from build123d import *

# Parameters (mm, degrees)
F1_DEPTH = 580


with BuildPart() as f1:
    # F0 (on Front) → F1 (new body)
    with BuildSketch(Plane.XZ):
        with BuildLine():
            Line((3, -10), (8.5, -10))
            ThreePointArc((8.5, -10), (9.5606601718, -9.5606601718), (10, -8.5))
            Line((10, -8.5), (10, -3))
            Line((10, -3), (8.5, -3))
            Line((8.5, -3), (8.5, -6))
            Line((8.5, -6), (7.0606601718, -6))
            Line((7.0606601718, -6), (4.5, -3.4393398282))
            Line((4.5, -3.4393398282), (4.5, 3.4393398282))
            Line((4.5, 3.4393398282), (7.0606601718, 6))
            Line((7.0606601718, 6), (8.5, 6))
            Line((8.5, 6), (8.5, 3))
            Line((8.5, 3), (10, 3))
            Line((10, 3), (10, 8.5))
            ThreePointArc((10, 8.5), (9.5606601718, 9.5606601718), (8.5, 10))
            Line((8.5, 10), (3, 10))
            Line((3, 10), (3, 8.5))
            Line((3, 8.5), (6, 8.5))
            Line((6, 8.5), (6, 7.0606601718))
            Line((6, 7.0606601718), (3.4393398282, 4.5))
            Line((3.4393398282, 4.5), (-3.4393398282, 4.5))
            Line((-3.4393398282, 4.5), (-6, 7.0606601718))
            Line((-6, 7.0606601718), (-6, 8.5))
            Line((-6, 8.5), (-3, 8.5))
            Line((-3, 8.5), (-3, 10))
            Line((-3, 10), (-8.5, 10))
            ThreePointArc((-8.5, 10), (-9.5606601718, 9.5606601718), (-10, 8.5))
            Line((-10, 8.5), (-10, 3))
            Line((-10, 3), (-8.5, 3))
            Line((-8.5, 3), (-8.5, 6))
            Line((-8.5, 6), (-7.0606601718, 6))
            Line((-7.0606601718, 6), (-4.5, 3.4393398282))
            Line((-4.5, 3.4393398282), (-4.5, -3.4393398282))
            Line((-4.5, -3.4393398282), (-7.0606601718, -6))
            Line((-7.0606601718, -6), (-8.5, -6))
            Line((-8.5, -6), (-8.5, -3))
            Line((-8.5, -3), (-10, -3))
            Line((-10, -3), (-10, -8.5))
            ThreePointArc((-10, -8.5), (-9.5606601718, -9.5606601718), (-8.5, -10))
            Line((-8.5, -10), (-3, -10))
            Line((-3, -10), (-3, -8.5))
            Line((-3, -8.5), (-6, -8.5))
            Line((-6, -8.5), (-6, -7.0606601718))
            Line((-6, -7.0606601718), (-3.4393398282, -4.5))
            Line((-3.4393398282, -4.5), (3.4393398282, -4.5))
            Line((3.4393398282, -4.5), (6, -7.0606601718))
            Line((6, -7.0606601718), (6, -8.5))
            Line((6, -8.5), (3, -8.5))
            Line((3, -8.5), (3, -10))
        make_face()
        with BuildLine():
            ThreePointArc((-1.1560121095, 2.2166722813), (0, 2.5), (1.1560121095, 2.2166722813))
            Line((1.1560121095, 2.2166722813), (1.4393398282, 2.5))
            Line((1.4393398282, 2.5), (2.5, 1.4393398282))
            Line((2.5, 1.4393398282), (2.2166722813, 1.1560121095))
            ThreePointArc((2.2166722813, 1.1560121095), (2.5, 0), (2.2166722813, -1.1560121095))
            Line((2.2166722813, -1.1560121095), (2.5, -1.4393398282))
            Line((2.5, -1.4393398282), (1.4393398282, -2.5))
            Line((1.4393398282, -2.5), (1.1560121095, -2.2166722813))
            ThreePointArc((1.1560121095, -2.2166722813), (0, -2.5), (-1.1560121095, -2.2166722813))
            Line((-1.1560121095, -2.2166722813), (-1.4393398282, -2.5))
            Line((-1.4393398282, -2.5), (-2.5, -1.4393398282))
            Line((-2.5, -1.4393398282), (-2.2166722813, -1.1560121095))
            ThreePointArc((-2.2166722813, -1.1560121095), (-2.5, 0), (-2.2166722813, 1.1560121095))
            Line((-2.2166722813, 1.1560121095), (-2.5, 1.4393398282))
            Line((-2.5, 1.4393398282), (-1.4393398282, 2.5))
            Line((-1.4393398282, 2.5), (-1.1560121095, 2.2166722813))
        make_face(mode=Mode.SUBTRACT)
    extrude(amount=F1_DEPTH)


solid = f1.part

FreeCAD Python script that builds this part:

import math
import FreeCAD as App
import Part
import Sketcher

doc = App.newDocument("Part")
body = doc.addObject("PartDesign::Body", "Body")

sketch1 = doc.addObject("Sketcher::SketchObject", "Sketch")
body.addObject(sketch1)
sketch1.AttachmentSupport = (doc.XZ_Plane, [""])
sketch1.MapMode = "FlatFace"
sketch1.addGeometry([
    Part.LineSegment(App.Vector(3, -10, 0), App.Vector(8.5, -10, 0)),
    Part.ArcOfCircle(Part.Circle(App.Vector(8.5, -8.5, 0), App.Vector(0, 0, 1), 1.5), math.radians(-90), math.radians(0)),
    Part.LineSegment(App.Vector(10, -8.5, 0), App.Vector(10, -3, 0)),
    Part.LineSegment(App.Vector(10, -3, 0), App.Vector(8.5, -3, 0)),
    Part.LineSegment(App.Vector(8.5, -3, 0), App.Vector(8.5, -6, 0)),
    Part.LineSegment(App.Vector(8.5, -6, 0), App.Vector(7.06, -6, 0)),
    Part.LineSegment(App.Vector(7.06, -6, 0), App.Vector(4.5, -3.44, 0)),
    Part.LineSegment(App.Vector(4.5, -3.44, 0), App.Vector(4.5, 3.44, 0)),
    Part.LineSegment(App.Vector(4.5, 3.44, 0), App.Vector(7.06, 6, 0)),
    Part.LineSegment(App.Vector(7.06, 6, 0), App.Vector(8.5, 6, 0)),
    Part.LineSegment(App.Vector(8.5, 6, 0), App.Vector(8.5, 3, 0)),
    Part.LineSegment(App.Vector(8.5, 3, 0), App.Vector(10, 3, 0)),
    Part.LineSegment(App.Vector(10, 3, 0), App.Vector(10, 8.5, 0)),
    Part.ArcOfCircle(Part.Circle(App.Vector(8.5, 8.5, 0), App.Vector(0, 0, 1), 1.5), math.radians(0), math.radians(90)),
    Part.LineSegment(App.Vector(8.5, 10, 0), App.Vector(3, 10, 0)),
    Part.LineSegment(App.Vector(3, 10, 0), App.Vector(3, 8.5, 0)),
    Part.LineSegment(App.Vector(3, 8.5, 0), App.Vector(6, 8.5, 0)),
    Part.LineSegment(App.Vector(6, 8.5, 0), App.Vector(6, 7.06, 0)),
    Part.LineSegment(App.Vector(6, 7.06, 0), App.Vector(3.44, 4.5, 0)),
    Part.LineSegment(App.Vector(3.44, 4.5, 0), App.Vector(-3.44, 4.5, 0)),
    Part.LineSegment(App.Vector(-3.44, 4.5, 0), App.Vector(-6, 7.06, 0)),
    Part.LineSegment(App.Vector(-6, 7.06, 0), App.Vector(-6, 8.5, 0)),
    Part.LineSegment(App.Vector(-6, 8.5, 0), App.Vector(-3, 8.5, 0)),
    Part.LineSegment(App.Vector(-3, 8.5, 0), App.Vector(-3, 10, 0)),
    Part.LineSegment(App.Vector(-3, 10, 0), App.Vector(-8.5, 10, 0)),
    Part.ArcOfCircle(Part.Circle(App.Vector(-8.5, 8.5, 0), App.Vector(0, 0, 1), 1.5), math.radians(90), math.radians(180)),
    Part.LineSegment(App.Vector(-10, 8.5, 0), App.Vector(-10, 3, 0)),
    Part.LineSegment(App.Vector(-10, 3, 0), App.Vector(-8.5, 3, 0)),
    Part.LineSegment(App.Vector(-8.5, 3, 0), App.Vector(-8.5, 6, 0)),
    Part.LineSegment(App.Vector(-8.5, 6, 0), App.Vector(-7.06, 6, 0)),
    Part.LineSegment(App.Vector(-7.06, 6, 0), App.Vector(-4.5, 3.44, 0)),
    Part.LineSegment(App.Vector(-4.5, 3.44, 0), App.Vector(-4.5, -3.44, 0)),
    Part.LineSegment(App.Vector(-4.5, -3.44, 0), App.Vector(-7.06, -6, 0)),
    Part.LineSegment(App.Vector(-7.06, -6, 0), App.Vector(-8.5, -6, 0)),
    Part.LineSegment(App.Vector(-8.5, -6, 0), App.Vector(-8.5, -3, 0)),
    Part.LineSegment(App.Vector(-8.5, -3, 0), App.Vector(-10, -3, 0)),
    Part.LineSegment(App.Vector(-10, -3, 0), App.Vector(-10, -8.5, 0)),
    Part.ArcOfCircle(Part.Circle(App.Vector(-8.5, -8.5, 0), App.Vector(0, 0, 1), 1.5), math.radians(180), math.radians(270)),
    Part.LineSegment(App.Vector(-8.5, -10, 0), App.Vector(-3, -10, 0)),
    Part.LineSegment(App.Vector(-3, -10, 0), App.Vector(-3, -8.5, 0)),
    Part.LineSegment(App.Vector(-3, -8.5, 0), App.Vector(-6, -8.5, 0)),
    Part.LineSegment(App.Vector(-6, -8.5, 0), App.Vector(-6, -7.06, 0)),
    Part.LineSegment(App.Vector(-6, -7.06, 0), App.Vector(-3.44, -4.5, 0)),
    Part.LineSegment(App.Vector(-3.44, -4.5, 0), App.Vector(3.44, -4.5, 0)),
    Part.LineSegment(App.Vector(3.44, -4.5, 0), App.Vector(6, -7.06, 0)),
    Part.LineSegment(App.Vector(6, -7.06, 0), App.Vector(6, -8.5, 0)),
    Part.LineSegment(App.Vector(6, -8.5, 0), App.Vector(3, -8.5, 0)),
    Part.LineSegment(App.Vector(3, -8.5, 0), App.Vector(3, -10, 0)),
    Part.LineSegment(App.Vector(-1.44, 2.5, 0), App.Vector(-1.16, 2.22, 0)),
    Part.ArcOfCircle(Part.Circle(App.Vector(0, 0, 0), App.Vector(0, 0, 1), 2.5), math.radians(62), math.radians(118)),
    Part.LineSegment(App.Vector(1.16, 2.22, 0), App.Vector(1.44, 2.5, 0)),
    Part.LineSegment(App.Vector(1.44, 2.5, 0), App.Vector(2.5, 1.44, 0)),
    Part.LineSegment(App.Vector(2.5, 1.44, 0), App.Vector(2.22, 1.16, 0)),
    Part.ArcOfCircle(Part.Circle(App.Vector(0, 0, 0), App.Vector(0, 0, 1), 2.5), math.radians(-28), math.radians(28)),
    Part.LineSegment(App.Vector(2.22, -1.16, 0), App.Vector(2.5, -1.44, 0)),
    Part.LineSegment(App.Vector(2.5, -1.44, 0), App.Vector(1.44, -2.5, 0)),
    Part.LineSegment(App.Vector(1.44, -2.5, 0), App.Vector(1.16, -2.22, 0)),
    Part.ArcOfCircle(Part.Circle(App.Vector(0, 0, 0), App.Vector(0, 0, 1), 2.5), math.radians(-118), math.radians(-62)),
    Part.LineSegment(App.Vector(-1.16, -2.22, 0), App.Vector(-1.44, -2.5, 0)),
    Part.LineSegment(App.Vector(-1.44, -2.5, 0), App.Vector(-2.5, -1.44, 0)),
    Part.LineSegment(App.Vector(-2.5, -1.44, 0), App.Vector(-2.22, -1.16, 0)),
    Part.ArcOfCircle(Part.Circle(App.Vector(0, 0, 0), App.Vector(0, 0, 1), 2.5), math.radians(152), math.radians(208)),
    Part.LineSegment(App.Vector(-2.22, 1.16, 0), App.Vector(-2.5, 1.44, 0)),
    Part.LineSegment(App.Vector(-2.5, 1.44, 0), App.Vector(-1.44, 2.5, 0)),
], False)
sketch1.addConstraint([
    Sketcher.Constraint("Tangent", 0, 2, 1, 1),
    Sketcher.Constraint("Tangent", 1, 2, 2, 1),
    Sketcher.Constraint("Coincident", 2, 2, 3, 1),
    Sketcher.Constraint("Coincident", 3, 2, 4, 1),
    Sketcher.Constraint("Coincident", 4, 2, 5, 1),
    Sketcher.Constraint("Coincident", 5, 2, 6, 1),
    Sketcher.Constraint("Coincident", 6, 2, 7, 1),
    Sketcher.Constraint("Coincident", 7, 2, 8, 1),
    Sketcher.Constraint("Coincident", 8, 2, 9, 1),
    Sketcher.Constraint("Coincident", 9, 2, 10, 1),
    Sketcher.Constraint("Coincident", 10, 2, 11, 1),
    Sketcher.Constraint("Coincident", 11, 2, 12, 1),
    Sketcher.Constraint("Tangent", 12, 2, 13, 1),
    Sketcher.Constraint("Tangent", 13, 2, 14, 1),
    Sketcher.Constraint("Coincident", 14, 2, 15, 1),
    Sketcher.Constraint("Coincident", 15, 2, 16, 1),
    Sketcher.Constraint("Coincident", 16, 2, 17, 1),
    Sketcher.Constraint("Coincident", 17, 2, 18, 1),
    Sketcher.Constraint("Coincident", 18, 2, 19, 1),
    Sketcher.Constraint("Coincident", 19, 2, 20, 1),
    Sketcher.Constraint("Coincident", 20, 2, 21, 1),
    Sketcher.Constraint("Coincident", 21, 2, 22, 1),
    Sketcher.Constraint("Coincident", 22, 2, 23, 1),
    Sketcher.Constraint("Coincident", 23, 2, 24, 1),
    Sketcher.Constraint("Tangent", 24, 2, 25, 1),
    Sketcher.Constraint("Tangent", 25, 2, 26, 1),
    Sketcher.Constraint("Coincident", 26, 2, 27, 1),
    Sketcher.Constraint("Coincident", 27, 2, 28, 1),
    Sketcher.Constraint("Coincident", 28, 2, 29, 1),
    Sketcher.Constraint("Coincident", 29, 2, 30, 1),
    Sketcher.Constraint("Coincident", 30, 2, 31, 1),
    Sketcher.Constraint("Coincident", 31, 2, 32, 1),
    Sketcher.Constraint("Coincident", 32, 2, 33, 1),
    Sketcher.Constraint("Coincident", 33, 2, 34, 1),
    Sketcher.Constraint("Coincident", 34, 2, 35, 1),
    Sketcher.Constraint("Coincident", 35, 2, 36, 1),
    Sketcher.Constraint("Tangent", 36, 2, 37, 1),
    Sketcher.Constraint("Tangent", 37, 2, 38, 1),
    Sketcher.Constraint("Coincident", 38, 2, 39, 1),
    Sketcher.Constraint("Coincident", 39, 2, 40, 1),
    Sketcher.Constraint("Coincident", 40, 2, 41, 1),
    Sketcher.Constraint("Coincident", 41, 2, 42, 1),
    Sketcher.Constraint("Coincident", 42, 2, 43, 1),
    Sketcher.Constraint("Coincident", 43, 2, 44, 1),
    Sketcher.Constraint("Coincident", 44, 2, 45, 1),
    Sketcher.Constraint("Coincident", 45, 2, 46, 1),
    Sketcher.Constraint("Coincident", 46, 2, 47, 1),
    Sketcher.Constraint("Coincident", 47, 2, 0, 1),
    Sketcher.Constraint("Coincident", 48, 2, 49, 2),
    Sketcher.Constraint("Coincident", 49, 1, 50, 1),
    Sketcher.Constraint("Coincident", 50, 2, 51, 1),
    Sketcher.Constraint("Coincident", 51, 2, 52, 1),
    Sketcher.Constraint("Coincident", 52, 2, 53, 2),
    Sketcher.Constraint("Coincident", 53, 1, 54, 1),
    Sketcher.Constraint("Coincident", 54, 2, 55, 1),
    Sketcher.Constraint("Coincident", 55, 2, 56, 1),
    Sketcher.Constraint("Coincident", 56, 2, 57, 2),
    Sketcher.Constraint("Coincident", 57, 1, 58, 1),
    Sketcher.Constraint("Coincident", 58, 2, 59, 1),
    Sketcher.Constraint("Coincident", 59, 2, 60, 1),
    Sketcher.Constraint("Coincident", 60, 2, 61, 2),
    Sketcher.Constraint("Coincident", 61, 1, 62, 1),
    Sketcher.Constraint("Coincident", 62, 2, 63, 1),
    Sketcher.Constraint("Coincident", 63, 2, 48, 1),
    Sketcher.Constraint("Horizontal", 0),
    Sketcher.Constraint("Vertical", 2),
    Sketcher.Constraint("Horizontal", 3),
    Sketcher.Constraint("Vertical", 4),
    Sketcher.Constraint("Horizontal", 5),
    Sketcher.Constraint("Vertical", 7),
    Sketcher.Constraint("Horizontal", 9),
    Sketcher.Constraint("Vertical", 10),
    Sketcher.Constraint("Horizontal", 11),
    Sketcher.Constraint("Vertical", 12),
    Sketcher.Constraint("Horizontal", 14),
    Sketcher.Constraint("Vertical", 15),
    Sketcher.Constraint("Horizontal", 16),
    Sketcher.Constraint("Vertical", 17),
    Sketcher.Constraint("Horizontal", 19),
    Sketcher.Constraint("Vertical", 21),
    Sketcher.Constraint("Horizontal", 22),
    Sketcher.Constraint("Vertical", 23),
    Sketcher.Constraint("Horizontal", 24),
    Sketcher.Constraint("Vertical", 26),
    Sketcher.Constraint("Horizontal", 27),
    Sketcher.Constraint("Vertical", 28),
    Sketcher.Constraint("Horizontal", 29),
    Sketcher.Constraint("Vertical", 31),
    Sketcher.Constraint("Horizontal", 33),
    Sketcher.Constraint("Vertical", 34),
    Sketcher.Constraint("Horizontal", 35),
    Sketcher.Constraint("Vertical", 36),
    Sketcher.Constraint("Horizontal", 38),
    Sketcher.Constraint("Vertical", 39),
    Sketcher.Constraint("Horizontal", 40),
    Sketcher.Constraint("Vertical", 41),
    Sketcher.Constraint("Horizontal", 43),
    Sketcher.Constraint("Vertical", 45),
    Sketcher.Constraint("Horizontal", 46),
    Sketcher.Constraint("Vertical", 47),
    Sketcher.Constraint("Coincident", 49, 3, -1, 1),
    Sketcher.Constraint("Coincident", 53, 3, -1, 1),
    Sketcher.Constraint("Coincident", 57, 3, -1, 1),
    Sketcher.Constraint("Coincident", 61, 3, -1, 1),
    Sketcher.Constraint("Equal", 1, 13),
    Sketcher.Constraint("Equal", 13, 25),
    Sketcher.Constraint("Equal", 25, 37),
    Sketcher.Constraint("Equal", 49, 53),
    Sketcher.Constraint("Equal", 53, 57),
    Sketcher.Constraint("Equal", 57, 61),
    Sketcher.Constraint("Symmetric", 1, 3, 25, 3, -1, 1),
    Sketcher.Constraint("Symmetric", 13, 3, 37, 3, -1, 1),
    Sketcher.Constraint("Symmetric", 3, 2, 27, 2, -1, 1),
    Sketcher.Constraint("Symmetric", 5, 2, 29, 2, -1, 1),
    Sketcher.Constraint("Symmetric", 6, 2, 30, 2, -1, 1),
    Sketcher.Constraint("Symmetric", 8, 2, 32, 2, -1, 1),
    Sketcher.Constraint("Symmetric", 10, 2, 34, 2, -1, 1),
    Sketcher.Constraint("Symmetric", 15, 2, 39, 2, -1, 1),
    Sketcher.Constraint("Symmetric", 17, 2, 41, 2, -1, 1),
    Sketcher.Constraint("Symmetric", 18, 2, 42, 2, -1, 1),
    Sketcher.Constraint("Symmetric", 20, 2, 44, 2, -1, 1),
    Sketcher.Constraint("Symmetric", 22, 2, 46, 2, -1, 1),
    Sketcher.Constraint("Symmetric", 50, 2, 58, 2, -1, 1),
    Sketcher.Constraint("Symmetric", 51, 2, 59, 2, -1, 1),
    Sketcher.Constraint("Symmetric", 54, 2, 62, 2, -1, 1),
    Sketcher.Constraint("Symmetric", 55, 2, 63, 2, -1, 1),
    Sketcher.Constraint("Symmetric", 13, 3, 25, 3, -2),
    Sketcher.Constraint("Symmetric", 17, 2, 20, 2, -2),
    Sketcher.Constraint("Symmetric", 15, 2, 22, 2, -2),
    Sketcher.Constraint("Symmetric", 10, 2, 27, 2, -2),
    Sketcher.Constraint("Symmetric", 8, 2, 29, 2, -2),
    Sketcher.Constraint("Symmetric", 55, 2, 58, 2, -2),
    Sketcher.Constraint("Symmetric", 54, 2, 59, 2, -2),
    Sketcher.Constraint("Perpendicular", 6, 8),
    Sketcher.Constraint("Parallel", 8, 18),
    Sketcher.Constraint("Perpendicular", 18, 20),
    Sketcher.Constraint("Perpendicular", 30, 32),
    Sketcher.Constraint("Perpendicular", 42, 44),
    Sketcher.Constraint("Parallel", 44, 48),
    Sketcher.Constraint("Perpendicular", 48, 50),
    Sketcher.Constraint("Perpendicular", 50, 51),
    Sketcher.Constraint("Perpendicular", 51, 52),
    Sketcher.Constraint("Perpendicular", 52, 54),
    Sketcher.Constraint("Perpendicular", 54, 55),
    Sketcher.Constraint("Perpendicular", 55, 56),
    Sketcher.Constraint("Perpendicular", 56, 58),
    Sketcher.Constraint("Perpendicular", 59, 60),
    Sketcher.Constraint("Perpendicular", 60, 62),
    Sketcher.Constraint("Horizontal", 12, 2, 15, 2),
    Sketcher.Constraint("Vertical", 0, 2, 3, 2),
    Sketcher.Constraint("Equal", 38, 2),
    Sketcher.Constraint("Equal", 46, 4),
    Sketcher.Constraint("Equal", 43, 7),
    Sketcher.Constraint("Equal", 33, 17),
    Sketcher.Constraint("Equal", 8, 18),
    Sketcher.Constraint("Equal", 50, 52),
    Sketcher.Constraint("Radius", 1, 1.5),
    Sketcher.Constraint("Radius", 49, 2.5),
    Sketcher.Constraint("DistanceX", 16, 1, 16, 2, 3.0),
    Sketcher.Constraint("DistanceX", 0, 1, 0, 2, 5.5),
    Sketcher.Constraint("DistanceY", 0, 2, -1, 1, 10.0),
    Sketcher.Constraint("Distance", 51, 1.5),
    Sketcher.Constraint("DistanceX", -1, 1, 6, 2, 4.5),
    Sketcher.Constraint("DistanceY", -1, 1, 50, 2, 2.5),
    Sketcher.Constraint("DistanceX", 5, 2, 5, 1, 1.43934),
])
pad1 = doc.addObject("PartDesign::Pad", "Pad")
body.addObject(pad1)
pad1.Profile = sketch1
pad1.Length = 580

doc.recompute()
